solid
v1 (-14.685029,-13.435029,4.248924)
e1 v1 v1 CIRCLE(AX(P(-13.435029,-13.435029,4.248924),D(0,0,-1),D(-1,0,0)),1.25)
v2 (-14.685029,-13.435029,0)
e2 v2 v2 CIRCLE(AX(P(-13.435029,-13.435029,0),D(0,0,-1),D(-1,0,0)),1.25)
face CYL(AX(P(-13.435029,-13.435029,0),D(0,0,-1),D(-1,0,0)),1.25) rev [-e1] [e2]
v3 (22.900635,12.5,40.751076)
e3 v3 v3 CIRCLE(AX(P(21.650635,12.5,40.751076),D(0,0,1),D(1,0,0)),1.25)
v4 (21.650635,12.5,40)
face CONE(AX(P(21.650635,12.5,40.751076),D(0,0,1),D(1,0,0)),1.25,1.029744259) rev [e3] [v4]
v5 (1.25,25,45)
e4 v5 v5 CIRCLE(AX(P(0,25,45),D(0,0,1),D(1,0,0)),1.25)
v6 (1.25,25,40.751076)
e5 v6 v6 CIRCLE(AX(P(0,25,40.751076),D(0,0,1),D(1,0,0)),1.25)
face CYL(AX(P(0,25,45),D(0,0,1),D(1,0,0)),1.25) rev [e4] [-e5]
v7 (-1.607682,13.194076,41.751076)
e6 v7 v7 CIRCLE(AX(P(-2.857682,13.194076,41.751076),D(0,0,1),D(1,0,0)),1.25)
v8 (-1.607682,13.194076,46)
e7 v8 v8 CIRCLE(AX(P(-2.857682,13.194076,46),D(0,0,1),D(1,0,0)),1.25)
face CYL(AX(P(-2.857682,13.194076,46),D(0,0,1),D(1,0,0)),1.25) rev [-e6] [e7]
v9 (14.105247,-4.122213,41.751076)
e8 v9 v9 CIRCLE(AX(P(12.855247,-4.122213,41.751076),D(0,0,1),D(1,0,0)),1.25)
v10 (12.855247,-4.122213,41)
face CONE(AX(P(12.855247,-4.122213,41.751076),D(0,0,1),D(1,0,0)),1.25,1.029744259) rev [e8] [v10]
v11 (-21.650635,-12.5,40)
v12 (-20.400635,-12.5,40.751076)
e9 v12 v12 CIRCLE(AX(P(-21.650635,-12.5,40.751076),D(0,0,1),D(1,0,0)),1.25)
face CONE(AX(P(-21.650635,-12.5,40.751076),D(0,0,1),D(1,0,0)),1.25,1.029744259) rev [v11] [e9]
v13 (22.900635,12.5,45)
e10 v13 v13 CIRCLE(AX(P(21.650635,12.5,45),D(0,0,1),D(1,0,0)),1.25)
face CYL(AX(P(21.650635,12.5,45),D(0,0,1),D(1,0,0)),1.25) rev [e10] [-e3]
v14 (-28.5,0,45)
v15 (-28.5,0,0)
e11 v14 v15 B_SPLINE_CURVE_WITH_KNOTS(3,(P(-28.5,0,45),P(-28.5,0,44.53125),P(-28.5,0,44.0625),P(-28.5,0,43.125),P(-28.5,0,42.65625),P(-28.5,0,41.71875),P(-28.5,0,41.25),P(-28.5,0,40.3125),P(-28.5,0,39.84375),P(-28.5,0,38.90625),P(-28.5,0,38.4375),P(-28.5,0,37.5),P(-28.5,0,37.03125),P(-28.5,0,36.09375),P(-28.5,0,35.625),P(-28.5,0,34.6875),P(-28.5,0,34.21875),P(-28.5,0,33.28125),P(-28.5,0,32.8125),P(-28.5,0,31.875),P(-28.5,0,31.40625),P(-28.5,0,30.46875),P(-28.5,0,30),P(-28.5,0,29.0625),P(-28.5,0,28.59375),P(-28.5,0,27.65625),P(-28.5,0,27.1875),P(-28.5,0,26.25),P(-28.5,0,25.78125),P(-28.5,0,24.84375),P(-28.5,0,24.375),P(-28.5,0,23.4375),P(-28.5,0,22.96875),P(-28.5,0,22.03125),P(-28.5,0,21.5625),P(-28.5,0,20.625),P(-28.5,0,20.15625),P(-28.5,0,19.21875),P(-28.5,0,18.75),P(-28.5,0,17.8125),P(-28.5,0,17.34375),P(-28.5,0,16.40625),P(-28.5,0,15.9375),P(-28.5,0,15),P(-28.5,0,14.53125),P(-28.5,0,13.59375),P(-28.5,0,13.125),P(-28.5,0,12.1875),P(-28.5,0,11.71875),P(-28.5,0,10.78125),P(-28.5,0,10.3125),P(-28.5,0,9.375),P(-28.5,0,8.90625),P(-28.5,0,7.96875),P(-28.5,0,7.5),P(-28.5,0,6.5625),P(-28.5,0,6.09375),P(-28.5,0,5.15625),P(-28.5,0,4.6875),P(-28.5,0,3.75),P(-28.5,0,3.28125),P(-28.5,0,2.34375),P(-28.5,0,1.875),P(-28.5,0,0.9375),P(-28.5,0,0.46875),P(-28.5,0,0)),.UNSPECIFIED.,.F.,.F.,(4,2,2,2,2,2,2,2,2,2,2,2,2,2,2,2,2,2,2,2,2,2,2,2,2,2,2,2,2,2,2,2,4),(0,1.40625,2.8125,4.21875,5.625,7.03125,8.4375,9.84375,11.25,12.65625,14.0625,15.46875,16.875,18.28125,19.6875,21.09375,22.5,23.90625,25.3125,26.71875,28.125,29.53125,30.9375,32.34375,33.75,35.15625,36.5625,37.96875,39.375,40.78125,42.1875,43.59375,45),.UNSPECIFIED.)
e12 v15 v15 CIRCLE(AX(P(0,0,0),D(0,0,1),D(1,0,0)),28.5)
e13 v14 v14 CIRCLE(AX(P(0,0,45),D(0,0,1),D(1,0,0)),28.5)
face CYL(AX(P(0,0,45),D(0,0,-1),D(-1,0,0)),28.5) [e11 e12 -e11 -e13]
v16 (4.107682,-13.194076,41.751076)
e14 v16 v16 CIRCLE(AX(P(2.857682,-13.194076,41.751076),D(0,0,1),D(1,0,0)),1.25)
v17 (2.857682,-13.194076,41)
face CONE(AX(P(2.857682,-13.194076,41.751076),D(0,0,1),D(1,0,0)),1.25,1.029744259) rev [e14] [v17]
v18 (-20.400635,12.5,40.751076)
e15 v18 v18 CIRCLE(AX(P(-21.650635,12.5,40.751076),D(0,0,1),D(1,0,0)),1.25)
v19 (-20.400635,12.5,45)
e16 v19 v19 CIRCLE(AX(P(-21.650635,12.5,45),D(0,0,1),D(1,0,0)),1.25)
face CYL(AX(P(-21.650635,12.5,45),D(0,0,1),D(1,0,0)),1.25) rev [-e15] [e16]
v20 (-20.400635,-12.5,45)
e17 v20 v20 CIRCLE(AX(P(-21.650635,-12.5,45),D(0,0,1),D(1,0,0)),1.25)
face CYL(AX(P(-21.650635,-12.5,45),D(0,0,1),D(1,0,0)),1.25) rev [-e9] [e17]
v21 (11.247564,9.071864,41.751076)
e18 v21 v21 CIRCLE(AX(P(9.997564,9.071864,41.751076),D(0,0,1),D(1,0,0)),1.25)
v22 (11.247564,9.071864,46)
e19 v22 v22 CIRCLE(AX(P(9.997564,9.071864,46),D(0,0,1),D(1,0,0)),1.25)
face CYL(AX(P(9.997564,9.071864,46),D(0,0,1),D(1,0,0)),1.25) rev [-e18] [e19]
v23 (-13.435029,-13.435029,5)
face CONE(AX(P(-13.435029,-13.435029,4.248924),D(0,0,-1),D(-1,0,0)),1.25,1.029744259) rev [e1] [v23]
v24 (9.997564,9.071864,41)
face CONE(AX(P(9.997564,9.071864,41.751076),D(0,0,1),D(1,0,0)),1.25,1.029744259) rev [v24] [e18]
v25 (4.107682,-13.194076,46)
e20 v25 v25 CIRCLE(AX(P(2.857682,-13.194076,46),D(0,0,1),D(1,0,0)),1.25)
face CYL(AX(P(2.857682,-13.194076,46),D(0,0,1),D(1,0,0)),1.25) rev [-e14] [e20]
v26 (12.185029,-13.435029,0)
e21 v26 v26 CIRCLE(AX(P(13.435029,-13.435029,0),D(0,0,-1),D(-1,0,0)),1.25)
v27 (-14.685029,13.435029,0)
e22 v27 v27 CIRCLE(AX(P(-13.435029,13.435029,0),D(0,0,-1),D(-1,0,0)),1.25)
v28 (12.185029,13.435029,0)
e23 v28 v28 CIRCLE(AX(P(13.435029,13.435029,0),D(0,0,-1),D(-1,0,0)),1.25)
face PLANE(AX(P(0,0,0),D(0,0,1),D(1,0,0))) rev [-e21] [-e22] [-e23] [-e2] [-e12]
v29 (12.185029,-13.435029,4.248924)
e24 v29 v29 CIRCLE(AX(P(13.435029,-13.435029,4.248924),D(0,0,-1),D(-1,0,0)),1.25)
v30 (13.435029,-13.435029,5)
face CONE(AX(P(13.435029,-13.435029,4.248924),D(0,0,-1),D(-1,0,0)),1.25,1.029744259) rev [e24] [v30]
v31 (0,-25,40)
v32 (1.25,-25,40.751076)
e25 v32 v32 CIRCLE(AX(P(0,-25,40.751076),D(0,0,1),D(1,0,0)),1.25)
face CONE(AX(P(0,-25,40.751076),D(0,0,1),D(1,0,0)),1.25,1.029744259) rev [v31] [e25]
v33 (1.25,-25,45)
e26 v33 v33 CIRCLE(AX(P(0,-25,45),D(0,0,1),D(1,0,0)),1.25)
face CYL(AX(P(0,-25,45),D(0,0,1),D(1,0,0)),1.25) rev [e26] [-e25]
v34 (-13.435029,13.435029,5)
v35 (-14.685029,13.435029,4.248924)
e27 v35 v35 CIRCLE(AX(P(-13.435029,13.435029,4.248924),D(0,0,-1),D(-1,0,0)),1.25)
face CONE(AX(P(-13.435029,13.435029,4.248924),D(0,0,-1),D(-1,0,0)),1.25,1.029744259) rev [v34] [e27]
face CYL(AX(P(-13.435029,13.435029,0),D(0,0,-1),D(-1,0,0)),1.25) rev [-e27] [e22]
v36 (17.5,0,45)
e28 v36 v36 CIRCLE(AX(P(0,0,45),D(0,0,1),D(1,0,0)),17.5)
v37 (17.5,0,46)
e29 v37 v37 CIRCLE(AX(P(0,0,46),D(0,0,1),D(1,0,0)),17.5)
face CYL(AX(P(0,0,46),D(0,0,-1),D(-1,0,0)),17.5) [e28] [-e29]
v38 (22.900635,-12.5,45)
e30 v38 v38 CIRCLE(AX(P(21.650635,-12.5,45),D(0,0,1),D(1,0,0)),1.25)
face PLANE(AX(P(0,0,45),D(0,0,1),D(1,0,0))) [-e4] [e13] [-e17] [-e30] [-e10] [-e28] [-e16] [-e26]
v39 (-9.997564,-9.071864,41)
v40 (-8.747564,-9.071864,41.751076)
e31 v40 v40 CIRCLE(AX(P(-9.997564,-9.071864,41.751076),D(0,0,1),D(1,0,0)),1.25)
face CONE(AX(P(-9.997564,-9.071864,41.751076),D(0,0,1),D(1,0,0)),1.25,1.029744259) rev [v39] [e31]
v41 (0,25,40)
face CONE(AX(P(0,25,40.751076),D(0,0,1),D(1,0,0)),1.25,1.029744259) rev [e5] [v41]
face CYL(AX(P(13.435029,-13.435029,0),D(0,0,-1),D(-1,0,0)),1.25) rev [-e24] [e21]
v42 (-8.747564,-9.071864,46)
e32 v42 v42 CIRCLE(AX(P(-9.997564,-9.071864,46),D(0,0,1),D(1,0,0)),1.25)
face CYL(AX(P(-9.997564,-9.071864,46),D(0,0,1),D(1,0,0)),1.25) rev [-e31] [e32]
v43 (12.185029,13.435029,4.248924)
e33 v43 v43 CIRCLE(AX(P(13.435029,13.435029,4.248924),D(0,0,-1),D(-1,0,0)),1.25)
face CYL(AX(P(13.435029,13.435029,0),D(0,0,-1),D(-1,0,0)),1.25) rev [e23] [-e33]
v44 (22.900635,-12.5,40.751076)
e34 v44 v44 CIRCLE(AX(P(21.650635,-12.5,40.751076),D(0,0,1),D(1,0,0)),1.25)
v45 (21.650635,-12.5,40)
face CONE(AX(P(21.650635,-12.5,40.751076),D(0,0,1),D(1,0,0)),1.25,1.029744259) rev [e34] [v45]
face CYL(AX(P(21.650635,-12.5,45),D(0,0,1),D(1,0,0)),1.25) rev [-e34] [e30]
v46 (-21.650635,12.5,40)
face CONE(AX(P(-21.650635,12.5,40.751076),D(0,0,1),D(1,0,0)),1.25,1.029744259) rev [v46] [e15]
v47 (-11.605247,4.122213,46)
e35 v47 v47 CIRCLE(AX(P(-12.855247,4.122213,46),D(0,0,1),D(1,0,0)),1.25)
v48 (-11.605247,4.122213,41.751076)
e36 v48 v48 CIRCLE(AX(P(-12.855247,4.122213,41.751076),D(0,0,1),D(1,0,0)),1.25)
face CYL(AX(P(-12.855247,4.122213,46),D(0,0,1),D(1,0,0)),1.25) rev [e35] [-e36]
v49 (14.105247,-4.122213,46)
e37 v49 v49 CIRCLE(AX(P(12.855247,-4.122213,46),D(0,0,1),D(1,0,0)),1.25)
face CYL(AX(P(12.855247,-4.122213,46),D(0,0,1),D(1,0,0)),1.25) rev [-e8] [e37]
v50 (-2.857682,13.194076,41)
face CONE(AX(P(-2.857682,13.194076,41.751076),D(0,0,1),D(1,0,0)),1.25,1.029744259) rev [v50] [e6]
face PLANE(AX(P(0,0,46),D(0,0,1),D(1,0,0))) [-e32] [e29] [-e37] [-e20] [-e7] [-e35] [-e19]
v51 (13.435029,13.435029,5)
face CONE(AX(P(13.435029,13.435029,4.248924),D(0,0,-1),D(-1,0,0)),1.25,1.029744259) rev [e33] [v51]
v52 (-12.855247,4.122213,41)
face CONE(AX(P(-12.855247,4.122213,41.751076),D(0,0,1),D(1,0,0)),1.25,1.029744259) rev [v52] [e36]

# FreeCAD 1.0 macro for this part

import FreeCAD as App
import Part
import Sketcher
from FreeCAD import Vector

doc = App.newDocument("Part")
body = doc.addObject("PartDesign::Body", "Body")

# Sketch on XY plane
sketch1 = doc.addObject("Sketcher::SketchObject", "Sketch")
body.addObject(sketch1)
sketch1.AttachmentSupport = (doc.XY_Plane, [""])
sketch1.MapMode = "FlatFace"
sketch1.addGeometry(Part.Circle(Vector(0, 0, 0), Vector(0, 0, 1), 28), False)
sketch1.addConstraint([
    Sketcher.Constraint("Coincident", 0, 3, -1, 1),
    Sketcher.Constraint("Diameter", 0, 57.0),
])
pad1 = doc.addObject("PartDesign::Pad", "Pad")
body.addObject(pad1)
pad1.Profile = sketch1
pad1.Length = 45

# Sketch on XY plane
sketch2 = doc.addObject("Sketcher::SketchObject", "Sketch001")
body.addObject(sketch2)
sketch2.AttachmentSupport = (doc.XY_Plane, [""])
sketch2.MapMode = "FlatFace"
sketch2.AttachmentOffset = App.Placement(Vector(0, 0, 45), App.Rotation())
sketch2.addGeometry(Part.Circle(Vector(0, 0, 0), Vector(0, 0, 1), 18), False)
sketch2.addConstraint([
    Sketcher.Constraint("Coincident", 0, 3, -1, 1),
    Sketcher.Constraint("Diameter", 0, 35.0),
])
pad2 = doc.addObject("PartDesign::Pad", "Pad001")
body.addObject(pad2)
pad2.Profile = sketch2
pad2.Length = 1

# Sketch on XY plane
sketch3 = doc.addObject("Sketcher::SketchObject", "Sketch002")
body.addObject(sketch3)
sketch3.AttachmentSupport = (doc.XY_Plane, [""])
sketch3.MapMode = "FlatFace"
sketch3.AttachmentOffset = App.Placement(Vector(0, 0, 45), App.Rotation())
sketch3.addGeometry([
    Part.Circle(Vector(0, 25, 0), Vector(0, 0, 1), 1.2),  # 0
    Part.Circle(Vector(21.7, 12.5, 0), Vector(0, 0, 1), 1.2),  # 1
    Part.Circle(Vector(21.7, -12.5, 0), Vector(0, 0, 1), 1.2),  # 2
    Part.Circle(Vector(0, -25, 0), Vector(0, 0, 1), 1.2),  # 3
    Part.Circle(Vector(-21.7, -12.5, 0), Vector(0, 0, 1), 1.2),  # 4
    Part.Circle(Vector(-21.7, 12.5, 0), Vector(0, 0, 1), 1.2),  # 5
], False)
sketch3.addConstraint([
    Sketcher.Constraint("Equal", 0, 1),
    Sketcher.Constraint("Equal", 1, 2),
    Sketcher.Constraint("Equal", 2, 3),
    Sketcher.Constraint("Equal", 3, 4),
    Sketcher.Constraint("Equal", 4, 5),
    Sketcher.Constraint("Symmetric", 0, 3, 3, 3, -1, 1),
    Sketcher.Constraint("Symmetric", 1, 3, 4, 3, -1, 1),
    Sketcher.Constraint("Symmetric", 2, 3, 5, 3, -1, 1),
    Sketcher.Constraint("Symmetric", 2, 3, 4, 3, -2),
    Sketcher.Constraint("PointOnObject", 0, 3, -2),
    Sketcher.Constraint("Diameter", 0, 2.5),
    Sketcher.Constraint("DistanceY", -1, 1, 0, 3, 25.0),
    Sketcher.Constraint("DistanceY", 2, 3, 1, 3, 25.0),
    Sketcher.Constraint("DistanceX", 4, 3, 2, 3, 43.30127),
])
doc.recompute()
hole = doc.addObject("PartDesign::Hole", "Hole")
body.addObject(hole)
hole.Profile = sketch3
hole.ThreadType = "None"
hole.Diameter = 2.5
hole.DepthType = "Dimension"
hole.Depth = 4.248924
hole.DrillPoint = "Angled"
hole.DrillPointAngle = 118

# Sketch on XY plane
sketch4 = doc.addObject("Sketcher::SketchObject", "Sketch003")
body.addObject(sketch4)
sketch4.AttachmentSupport = (doc.XY_Plane, [""])
sketch4.MapMode = "FlatFace"
sketch4.AttachmentOffset = App.Placement(Vector(0, 0, 46), App.Rotation())
sketch4.addGeometry([
    Part.Circle(Vector(-2.9, 13.2, 0), Vector(0, 0, 1), 1.2),  # 0
    Part.Circle(Vector(10, 9.1, 0), Vector(0, 0, 1), 1.2),  # 1
    Part.Circle(Vector(12.9, -4.1, 0), Vector(0, 0, 1), 1.2),  # 2
    Part.Circle(Vector(2.9, -13.2, 0), Vector(0, 0, 1), 1.2),  # 3
    Part.Circle(Vector(-10, -9.1, 0), Vector(0, 0, 1), 1.2),  # 4
    Part.Circle(Vector(-12.9, 4.1, 0), Vector(0, 0, 1), 1.2),  # 5
], False)
sketch4.addConstraint([
    Sketcher.Constraint("Equal", 0, 1),
    Sketcher.Constraint("Equal", 1, 2),
    Sketcher.Constraint("Equal", 2, 3),
    Sketcher.Constraint("Equal", 3, 4),
    Sketcher.Constraint("Equal", 4, 5),
    Sketcher.Constraint("Symmetric", 0, 3, 3, 3, -1, 1),
    Sketcher.Constraint("Symmetric", 1, 3, 4, 3, -1, 1),
    Sketcher.Constraint("Symmetric", 2, 3, 5, 3, -1, 1),
    Sketcher.Constraint("Diameter", 0, 2.5),
    Sketcher.Constraint("DistanceX", 0, 3, 2, 3, 15.712929),
    Sketcher.Constraint("DistanceY", 2, 3, 0, 3, 17.316289),
    Sketcher.Constraint("DistanceX", 3, 3, 1, 3, 7.139882),
    Sketcher.Constraint("DistanceY", 3, 3, 1, 3, 22.26594),
    Sketcher.Constraint("DistanceX", 4, 3, 1, 3, 19.995128),
    Sketcher.Constraint("DistanceY", -1, 1, 0, 3, 13.194076),
])
doc.recompute()
hole2 = doc.addObject("PartDesign::Hole", "Hole001")
body.addObject(hole2)
hole2.Profile = sketch4
hole2.ThreadType = "None"
hole2.Diameter = 2.5
hole2.DepthType = "Dimension"
hole2.Depth = 4.248924
hole2.DrillPoint = "Angled"
hole2.DrillPointAngle = 118

# Sketch on XY plane
sketch5 = doc.addObject("Sketcher::SketchObject", "Sketch004")
body.addObject(sketch5)
sketch5.AttachmentSupport = (doc.XY_Plane, [""])
sketch5.MapMode = "FlatFace"
sketch5.addGeometry([
    Part.Circle(Vector(13.4, 13.4, 0), Vector(0, 0, 1), 1.2),
    Part.Circle(Vector(13.4, -13.4, 0), Vector(0, 0, 1), 1.2),
    Part.Circle(Vector(-13.4, -13.4, 0), Vector(0, 0, 1), 1.2),
    Part.Circle(Vector(-13.4, 13.4, 0), Vector(0, 0, 1), 1.2),
], False)
sketch5.addConstraint([
    Sketcher.Constraint("Equal", 0, 1),
    Sketcher.Constraint("Equal", 1, 2),
    Sketcher.Constraint("Equal", 2, 3),
    Sketcher.Constraint("Symmetric", 0, 3, 2, 3, -1, 1),
    Sketcher.Constraint("Symmetric", 1, 3, 3, 3, -1, 1),
    Sketcher.Constraint("Symmetric", 1, 3, 2, 3, -2),
    Sketcher.Constraint("Diameter", 0, 2.5),
    Sketcher.Constraint("DistanceX", -1, 1, 0, 3, 13.435029),
    Sketcher.Constraint("DistanceY", -1, 1, 0, 3, 13.435029),
])
doc.recompute()
hole3 = doc.addObject("PartDesign::Hole", "Hole002")
body.addObject(hole3)
hole3.Profile = sketch5
hole3.ThreadType = "None"
hole3.Diameter = 2.5
hole3.DepthType = "Dimension"
hole3.Depth = 4.248924
hole3.DrillPoint = "Angled"
hole3.DrillPointAngle = 118
hole3.Reversed = True

doc.recompute()
